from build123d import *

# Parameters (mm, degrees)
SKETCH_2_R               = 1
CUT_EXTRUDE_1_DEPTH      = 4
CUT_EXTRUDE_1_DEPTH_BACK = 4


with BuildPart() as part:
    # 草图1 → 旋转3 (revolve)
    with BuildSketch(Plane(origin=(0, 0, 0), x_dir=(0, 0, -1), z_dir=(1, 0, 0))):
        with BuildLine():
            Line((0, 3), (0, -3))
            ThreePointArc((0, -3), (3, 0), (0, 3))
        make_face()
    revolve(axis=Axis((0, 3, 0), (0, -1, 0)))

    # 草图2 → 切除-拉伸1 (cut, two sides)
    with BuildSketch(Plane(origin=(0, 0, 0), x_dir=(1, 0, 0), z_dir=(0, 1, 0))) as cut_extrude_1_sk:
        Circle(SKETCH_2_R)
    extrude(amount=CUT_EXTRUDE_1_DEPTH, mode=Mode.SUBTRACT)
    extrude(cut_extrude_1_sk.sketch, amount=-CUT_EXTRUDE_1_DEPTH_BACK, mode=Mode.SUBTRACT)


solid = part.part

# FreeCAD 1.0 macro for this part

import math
import FreeCAD as App
import Part
import Sketcher
from FreeCAD import Vector

doc = App.newDocument("Part")
body = doc.addObject("PartDesign::Body", "Body")

# Sketch on YZ plane
sketch1 = body.newObject("Sketcher::SketchObject", "Sketch")
sketch1.AttachmentSupport = (doc.getObject("YZ_Plane"), [""])
sketch1.MapMode = "FlatFace"
sketch1.addGeometry(Part.LineSegment(Vector(3, 0, 0), Vector(-3, 0, 0)), False)
sketch1.addGeometry(Part.ArcOfCircle(Part.Circle(Vector(0, 0, 0), Vector(0, 0, 1), 3), math.radians(180), math.radians(360)), False)
sketch1.addConstraint(Sketcher.Constraint("Coincident", 0, 1, 1, 2))
sketch1.addConstraint(Sketcher.Constraint("Coincident", 1, 1, 0, 2))
sketch1.addConstraint(Sketcher.Constraint("Horizontal", 0))
sketch1.addConstraint(Sketcher.Constraint("Coincident", 1, 3, -1, 1))
sketch1.addConstraint(Sketcher.Constraint("PointOnObject", 0, 1, -1))
sketch1.addConstraint(Sketcher.Constraint("Radius", 1, 3.0))
revolution = body.newObject("PartDesign::Revolution", "Revolution")
revolution.Profile = sketch1
revolution.ReferenceAxis = (sketch1, ["H_Axis"])
revolution.Angle = 360

# Sketch on XZ plane
sketch2 = body.newObject("Sketcher::SketchObject", "Sketch001")
sketch2.AttachmentSupport = (doc.getObject("XZ_Plane"), [""])
sketch2.MapMode = "FlatFace"
sketch2.addGeometry(Part.Circle(Vector(0, 0, 0), Vector(0, 0, 1), 1), False)
sketch2.addConstraint(Sketcher.Constraint("Coincident", 0, 3, -1, 1))
sketch2.addConstraint(Sketcher.Constraint("Diameter", 0, 2.0))
pocket1 = body.newObject("PartDesign::Pocket", "Pocket")
pocket1.Profile = sketch2
pocket1.Type = "ThroughAll"
pocket1.Midplane = True

doc.recompute()
